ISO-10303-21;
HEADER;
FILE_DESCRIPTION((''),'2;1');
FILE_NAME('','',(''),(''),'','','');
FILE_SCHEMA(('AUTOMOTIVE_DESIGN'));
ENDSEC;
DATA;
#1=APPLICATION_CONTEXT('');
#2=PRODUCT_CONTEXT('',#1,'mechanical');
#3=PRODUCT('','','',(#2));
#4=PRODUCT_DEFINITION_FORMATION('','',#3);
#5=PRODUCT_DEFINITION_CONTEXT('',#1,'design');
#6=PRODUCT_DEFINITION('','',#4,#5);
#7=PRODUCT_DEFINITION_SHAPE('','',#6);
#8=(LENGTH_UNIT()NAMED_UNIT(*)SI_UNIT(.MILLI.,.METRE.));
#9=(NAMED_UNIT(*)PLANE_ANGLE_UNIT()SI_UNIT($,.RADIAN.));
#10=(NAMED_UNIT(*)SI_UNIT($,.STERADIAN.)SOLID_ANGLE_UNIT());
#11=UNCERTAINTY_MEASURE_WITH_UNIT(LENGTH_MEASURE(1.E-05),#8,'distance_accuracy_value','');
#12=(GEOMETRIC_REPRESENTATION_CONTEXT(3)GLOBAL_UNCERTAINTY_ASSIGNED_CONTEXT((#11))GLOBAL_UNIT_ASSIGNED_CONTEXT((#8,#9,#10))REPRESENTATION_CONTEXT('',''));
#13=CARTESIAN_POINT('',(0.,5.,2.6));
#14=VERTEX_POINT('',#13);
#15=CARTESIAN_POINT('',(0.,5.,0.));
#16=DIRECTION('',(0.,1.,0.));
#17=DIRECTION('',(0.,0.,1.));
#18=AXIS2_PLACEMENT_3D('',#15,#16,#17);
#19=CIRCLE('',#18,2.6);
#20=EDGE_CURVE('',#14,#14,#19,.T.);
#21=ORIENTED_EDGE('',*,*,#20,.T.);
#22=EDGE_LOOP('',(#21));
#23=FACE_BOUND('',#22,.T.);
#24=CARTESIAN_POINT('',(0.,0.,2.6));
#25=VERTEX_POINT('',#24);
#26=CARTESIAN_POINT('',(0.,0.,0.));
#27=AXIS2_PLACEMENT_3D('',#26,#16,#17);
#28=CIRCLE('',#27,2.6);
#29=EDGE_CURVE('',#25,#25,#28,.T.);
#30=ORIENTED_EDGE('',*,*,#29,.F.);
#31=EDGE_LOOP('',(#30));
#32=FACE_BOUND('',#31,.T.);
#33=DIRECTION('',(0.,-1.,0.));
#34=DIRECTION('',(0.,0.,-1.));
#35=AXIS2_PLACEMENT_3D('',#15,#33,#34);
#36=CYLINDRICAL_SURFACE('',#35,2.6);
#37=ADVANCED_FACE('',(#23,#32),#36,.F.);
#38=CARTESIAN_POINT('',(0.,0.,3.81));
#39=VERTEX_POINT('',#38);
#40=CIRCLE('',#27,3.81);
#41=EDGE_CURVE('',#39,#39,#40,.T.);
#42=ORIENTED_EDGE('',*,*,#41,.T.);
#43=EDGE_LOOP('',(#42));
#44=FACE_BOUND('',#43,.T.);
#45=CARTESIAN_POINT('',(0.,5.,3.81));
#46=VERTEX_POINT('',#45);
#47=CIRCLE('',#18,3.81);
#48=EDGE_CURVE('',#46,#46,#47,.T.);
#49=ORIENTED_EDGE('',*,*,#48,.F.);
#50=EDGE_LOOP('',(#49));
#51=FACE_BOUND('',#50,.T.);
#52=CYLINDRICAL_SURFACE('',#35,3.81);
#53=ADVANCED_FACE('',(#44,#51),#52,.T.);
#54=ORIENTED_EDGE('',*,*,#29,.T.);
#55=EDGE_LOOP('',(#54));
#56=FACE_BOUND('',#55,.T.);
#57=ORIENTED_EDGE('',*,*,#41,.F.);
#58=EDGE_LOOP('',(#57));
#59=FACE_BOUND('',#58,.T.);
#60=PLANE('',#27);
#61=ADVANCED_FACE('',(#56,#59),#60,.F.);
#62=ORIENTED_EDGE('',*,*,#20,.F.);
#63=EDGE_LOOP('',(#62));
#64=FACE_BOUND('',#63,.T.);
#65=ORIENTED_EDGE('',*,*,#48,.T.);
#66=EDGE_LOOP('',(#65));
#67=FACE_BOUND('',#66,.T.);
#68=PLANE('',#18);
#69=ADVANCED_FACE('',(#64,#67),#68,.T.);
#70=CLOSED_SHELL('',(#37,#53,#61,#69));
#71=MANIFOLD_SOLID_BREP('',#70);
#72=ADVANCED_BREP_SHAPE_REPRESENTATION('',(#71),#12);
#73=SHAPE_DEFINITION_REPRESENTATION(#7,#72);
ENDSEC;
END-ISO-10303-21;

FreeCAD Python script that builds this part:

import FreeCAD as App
import Part
import Sketcher

doc = App.newDocument("Part")
params = doc.addObject("Spreadsheet::Sheet", "Params")
for row, (alias, value) in enumerate([
    ("sketch1_diameter", "5.2 mm"),
    ("sketch1_diameter2", "7.62 mm"),
    ("pad1_length", "5 mm"),
], start=1):
    params.set(f"A{row}", alias)
    params.set(f"B{row}", "=" + value)
    params.setAlias(f"B{row}", alias)

body = doc.addObject("PartDesign::Body", "Body")

# Sketch on XZ plane
sketch1 = body.newObject("Sketcher::SketchObject", "Sketch")
sketch1.AttachmentSupport = (doc.getObject("XZ_Plane"), [""])
sketch1.MapMode = "FlatFace"
sketch1.addGeometry(Part.Circle(App.Vector(0, 0, 0), App.Vector(0, 0, 1), 3.8), False)
sketch1.addGeometry(Part.Circle(App.Vector(0, 0, 0), App.Vector(0, 0, 1), 2.6), False)
sketch1.addConstraint(Sketcher.Constraint("Coincident", 0, 3, -1, 1))
sketch1.addConstraint(Sketcher.Constraint("Coincident", 1, 3, -1, 1))
sketch1.addConstraint(Sketcher.Constraint("Diameter", 1, 5.2))
sketch1.addConstraint(Sketcher.Constraint("Diameter", 0, 7.62))
sketch1.setExpression("Constraints[2]", "Params.sketch1_diameter")
sketch1.setExpression("Constraints[3]", "Params.sketch1_diameter2")
pad1 = body.newObject("PartDesign::Pad", "Pad")
pad1.Profile = sketch1
pad1.setExpression("Length", "Params.pad1_length")
pad1.Reversed = True

doc.recompute()
